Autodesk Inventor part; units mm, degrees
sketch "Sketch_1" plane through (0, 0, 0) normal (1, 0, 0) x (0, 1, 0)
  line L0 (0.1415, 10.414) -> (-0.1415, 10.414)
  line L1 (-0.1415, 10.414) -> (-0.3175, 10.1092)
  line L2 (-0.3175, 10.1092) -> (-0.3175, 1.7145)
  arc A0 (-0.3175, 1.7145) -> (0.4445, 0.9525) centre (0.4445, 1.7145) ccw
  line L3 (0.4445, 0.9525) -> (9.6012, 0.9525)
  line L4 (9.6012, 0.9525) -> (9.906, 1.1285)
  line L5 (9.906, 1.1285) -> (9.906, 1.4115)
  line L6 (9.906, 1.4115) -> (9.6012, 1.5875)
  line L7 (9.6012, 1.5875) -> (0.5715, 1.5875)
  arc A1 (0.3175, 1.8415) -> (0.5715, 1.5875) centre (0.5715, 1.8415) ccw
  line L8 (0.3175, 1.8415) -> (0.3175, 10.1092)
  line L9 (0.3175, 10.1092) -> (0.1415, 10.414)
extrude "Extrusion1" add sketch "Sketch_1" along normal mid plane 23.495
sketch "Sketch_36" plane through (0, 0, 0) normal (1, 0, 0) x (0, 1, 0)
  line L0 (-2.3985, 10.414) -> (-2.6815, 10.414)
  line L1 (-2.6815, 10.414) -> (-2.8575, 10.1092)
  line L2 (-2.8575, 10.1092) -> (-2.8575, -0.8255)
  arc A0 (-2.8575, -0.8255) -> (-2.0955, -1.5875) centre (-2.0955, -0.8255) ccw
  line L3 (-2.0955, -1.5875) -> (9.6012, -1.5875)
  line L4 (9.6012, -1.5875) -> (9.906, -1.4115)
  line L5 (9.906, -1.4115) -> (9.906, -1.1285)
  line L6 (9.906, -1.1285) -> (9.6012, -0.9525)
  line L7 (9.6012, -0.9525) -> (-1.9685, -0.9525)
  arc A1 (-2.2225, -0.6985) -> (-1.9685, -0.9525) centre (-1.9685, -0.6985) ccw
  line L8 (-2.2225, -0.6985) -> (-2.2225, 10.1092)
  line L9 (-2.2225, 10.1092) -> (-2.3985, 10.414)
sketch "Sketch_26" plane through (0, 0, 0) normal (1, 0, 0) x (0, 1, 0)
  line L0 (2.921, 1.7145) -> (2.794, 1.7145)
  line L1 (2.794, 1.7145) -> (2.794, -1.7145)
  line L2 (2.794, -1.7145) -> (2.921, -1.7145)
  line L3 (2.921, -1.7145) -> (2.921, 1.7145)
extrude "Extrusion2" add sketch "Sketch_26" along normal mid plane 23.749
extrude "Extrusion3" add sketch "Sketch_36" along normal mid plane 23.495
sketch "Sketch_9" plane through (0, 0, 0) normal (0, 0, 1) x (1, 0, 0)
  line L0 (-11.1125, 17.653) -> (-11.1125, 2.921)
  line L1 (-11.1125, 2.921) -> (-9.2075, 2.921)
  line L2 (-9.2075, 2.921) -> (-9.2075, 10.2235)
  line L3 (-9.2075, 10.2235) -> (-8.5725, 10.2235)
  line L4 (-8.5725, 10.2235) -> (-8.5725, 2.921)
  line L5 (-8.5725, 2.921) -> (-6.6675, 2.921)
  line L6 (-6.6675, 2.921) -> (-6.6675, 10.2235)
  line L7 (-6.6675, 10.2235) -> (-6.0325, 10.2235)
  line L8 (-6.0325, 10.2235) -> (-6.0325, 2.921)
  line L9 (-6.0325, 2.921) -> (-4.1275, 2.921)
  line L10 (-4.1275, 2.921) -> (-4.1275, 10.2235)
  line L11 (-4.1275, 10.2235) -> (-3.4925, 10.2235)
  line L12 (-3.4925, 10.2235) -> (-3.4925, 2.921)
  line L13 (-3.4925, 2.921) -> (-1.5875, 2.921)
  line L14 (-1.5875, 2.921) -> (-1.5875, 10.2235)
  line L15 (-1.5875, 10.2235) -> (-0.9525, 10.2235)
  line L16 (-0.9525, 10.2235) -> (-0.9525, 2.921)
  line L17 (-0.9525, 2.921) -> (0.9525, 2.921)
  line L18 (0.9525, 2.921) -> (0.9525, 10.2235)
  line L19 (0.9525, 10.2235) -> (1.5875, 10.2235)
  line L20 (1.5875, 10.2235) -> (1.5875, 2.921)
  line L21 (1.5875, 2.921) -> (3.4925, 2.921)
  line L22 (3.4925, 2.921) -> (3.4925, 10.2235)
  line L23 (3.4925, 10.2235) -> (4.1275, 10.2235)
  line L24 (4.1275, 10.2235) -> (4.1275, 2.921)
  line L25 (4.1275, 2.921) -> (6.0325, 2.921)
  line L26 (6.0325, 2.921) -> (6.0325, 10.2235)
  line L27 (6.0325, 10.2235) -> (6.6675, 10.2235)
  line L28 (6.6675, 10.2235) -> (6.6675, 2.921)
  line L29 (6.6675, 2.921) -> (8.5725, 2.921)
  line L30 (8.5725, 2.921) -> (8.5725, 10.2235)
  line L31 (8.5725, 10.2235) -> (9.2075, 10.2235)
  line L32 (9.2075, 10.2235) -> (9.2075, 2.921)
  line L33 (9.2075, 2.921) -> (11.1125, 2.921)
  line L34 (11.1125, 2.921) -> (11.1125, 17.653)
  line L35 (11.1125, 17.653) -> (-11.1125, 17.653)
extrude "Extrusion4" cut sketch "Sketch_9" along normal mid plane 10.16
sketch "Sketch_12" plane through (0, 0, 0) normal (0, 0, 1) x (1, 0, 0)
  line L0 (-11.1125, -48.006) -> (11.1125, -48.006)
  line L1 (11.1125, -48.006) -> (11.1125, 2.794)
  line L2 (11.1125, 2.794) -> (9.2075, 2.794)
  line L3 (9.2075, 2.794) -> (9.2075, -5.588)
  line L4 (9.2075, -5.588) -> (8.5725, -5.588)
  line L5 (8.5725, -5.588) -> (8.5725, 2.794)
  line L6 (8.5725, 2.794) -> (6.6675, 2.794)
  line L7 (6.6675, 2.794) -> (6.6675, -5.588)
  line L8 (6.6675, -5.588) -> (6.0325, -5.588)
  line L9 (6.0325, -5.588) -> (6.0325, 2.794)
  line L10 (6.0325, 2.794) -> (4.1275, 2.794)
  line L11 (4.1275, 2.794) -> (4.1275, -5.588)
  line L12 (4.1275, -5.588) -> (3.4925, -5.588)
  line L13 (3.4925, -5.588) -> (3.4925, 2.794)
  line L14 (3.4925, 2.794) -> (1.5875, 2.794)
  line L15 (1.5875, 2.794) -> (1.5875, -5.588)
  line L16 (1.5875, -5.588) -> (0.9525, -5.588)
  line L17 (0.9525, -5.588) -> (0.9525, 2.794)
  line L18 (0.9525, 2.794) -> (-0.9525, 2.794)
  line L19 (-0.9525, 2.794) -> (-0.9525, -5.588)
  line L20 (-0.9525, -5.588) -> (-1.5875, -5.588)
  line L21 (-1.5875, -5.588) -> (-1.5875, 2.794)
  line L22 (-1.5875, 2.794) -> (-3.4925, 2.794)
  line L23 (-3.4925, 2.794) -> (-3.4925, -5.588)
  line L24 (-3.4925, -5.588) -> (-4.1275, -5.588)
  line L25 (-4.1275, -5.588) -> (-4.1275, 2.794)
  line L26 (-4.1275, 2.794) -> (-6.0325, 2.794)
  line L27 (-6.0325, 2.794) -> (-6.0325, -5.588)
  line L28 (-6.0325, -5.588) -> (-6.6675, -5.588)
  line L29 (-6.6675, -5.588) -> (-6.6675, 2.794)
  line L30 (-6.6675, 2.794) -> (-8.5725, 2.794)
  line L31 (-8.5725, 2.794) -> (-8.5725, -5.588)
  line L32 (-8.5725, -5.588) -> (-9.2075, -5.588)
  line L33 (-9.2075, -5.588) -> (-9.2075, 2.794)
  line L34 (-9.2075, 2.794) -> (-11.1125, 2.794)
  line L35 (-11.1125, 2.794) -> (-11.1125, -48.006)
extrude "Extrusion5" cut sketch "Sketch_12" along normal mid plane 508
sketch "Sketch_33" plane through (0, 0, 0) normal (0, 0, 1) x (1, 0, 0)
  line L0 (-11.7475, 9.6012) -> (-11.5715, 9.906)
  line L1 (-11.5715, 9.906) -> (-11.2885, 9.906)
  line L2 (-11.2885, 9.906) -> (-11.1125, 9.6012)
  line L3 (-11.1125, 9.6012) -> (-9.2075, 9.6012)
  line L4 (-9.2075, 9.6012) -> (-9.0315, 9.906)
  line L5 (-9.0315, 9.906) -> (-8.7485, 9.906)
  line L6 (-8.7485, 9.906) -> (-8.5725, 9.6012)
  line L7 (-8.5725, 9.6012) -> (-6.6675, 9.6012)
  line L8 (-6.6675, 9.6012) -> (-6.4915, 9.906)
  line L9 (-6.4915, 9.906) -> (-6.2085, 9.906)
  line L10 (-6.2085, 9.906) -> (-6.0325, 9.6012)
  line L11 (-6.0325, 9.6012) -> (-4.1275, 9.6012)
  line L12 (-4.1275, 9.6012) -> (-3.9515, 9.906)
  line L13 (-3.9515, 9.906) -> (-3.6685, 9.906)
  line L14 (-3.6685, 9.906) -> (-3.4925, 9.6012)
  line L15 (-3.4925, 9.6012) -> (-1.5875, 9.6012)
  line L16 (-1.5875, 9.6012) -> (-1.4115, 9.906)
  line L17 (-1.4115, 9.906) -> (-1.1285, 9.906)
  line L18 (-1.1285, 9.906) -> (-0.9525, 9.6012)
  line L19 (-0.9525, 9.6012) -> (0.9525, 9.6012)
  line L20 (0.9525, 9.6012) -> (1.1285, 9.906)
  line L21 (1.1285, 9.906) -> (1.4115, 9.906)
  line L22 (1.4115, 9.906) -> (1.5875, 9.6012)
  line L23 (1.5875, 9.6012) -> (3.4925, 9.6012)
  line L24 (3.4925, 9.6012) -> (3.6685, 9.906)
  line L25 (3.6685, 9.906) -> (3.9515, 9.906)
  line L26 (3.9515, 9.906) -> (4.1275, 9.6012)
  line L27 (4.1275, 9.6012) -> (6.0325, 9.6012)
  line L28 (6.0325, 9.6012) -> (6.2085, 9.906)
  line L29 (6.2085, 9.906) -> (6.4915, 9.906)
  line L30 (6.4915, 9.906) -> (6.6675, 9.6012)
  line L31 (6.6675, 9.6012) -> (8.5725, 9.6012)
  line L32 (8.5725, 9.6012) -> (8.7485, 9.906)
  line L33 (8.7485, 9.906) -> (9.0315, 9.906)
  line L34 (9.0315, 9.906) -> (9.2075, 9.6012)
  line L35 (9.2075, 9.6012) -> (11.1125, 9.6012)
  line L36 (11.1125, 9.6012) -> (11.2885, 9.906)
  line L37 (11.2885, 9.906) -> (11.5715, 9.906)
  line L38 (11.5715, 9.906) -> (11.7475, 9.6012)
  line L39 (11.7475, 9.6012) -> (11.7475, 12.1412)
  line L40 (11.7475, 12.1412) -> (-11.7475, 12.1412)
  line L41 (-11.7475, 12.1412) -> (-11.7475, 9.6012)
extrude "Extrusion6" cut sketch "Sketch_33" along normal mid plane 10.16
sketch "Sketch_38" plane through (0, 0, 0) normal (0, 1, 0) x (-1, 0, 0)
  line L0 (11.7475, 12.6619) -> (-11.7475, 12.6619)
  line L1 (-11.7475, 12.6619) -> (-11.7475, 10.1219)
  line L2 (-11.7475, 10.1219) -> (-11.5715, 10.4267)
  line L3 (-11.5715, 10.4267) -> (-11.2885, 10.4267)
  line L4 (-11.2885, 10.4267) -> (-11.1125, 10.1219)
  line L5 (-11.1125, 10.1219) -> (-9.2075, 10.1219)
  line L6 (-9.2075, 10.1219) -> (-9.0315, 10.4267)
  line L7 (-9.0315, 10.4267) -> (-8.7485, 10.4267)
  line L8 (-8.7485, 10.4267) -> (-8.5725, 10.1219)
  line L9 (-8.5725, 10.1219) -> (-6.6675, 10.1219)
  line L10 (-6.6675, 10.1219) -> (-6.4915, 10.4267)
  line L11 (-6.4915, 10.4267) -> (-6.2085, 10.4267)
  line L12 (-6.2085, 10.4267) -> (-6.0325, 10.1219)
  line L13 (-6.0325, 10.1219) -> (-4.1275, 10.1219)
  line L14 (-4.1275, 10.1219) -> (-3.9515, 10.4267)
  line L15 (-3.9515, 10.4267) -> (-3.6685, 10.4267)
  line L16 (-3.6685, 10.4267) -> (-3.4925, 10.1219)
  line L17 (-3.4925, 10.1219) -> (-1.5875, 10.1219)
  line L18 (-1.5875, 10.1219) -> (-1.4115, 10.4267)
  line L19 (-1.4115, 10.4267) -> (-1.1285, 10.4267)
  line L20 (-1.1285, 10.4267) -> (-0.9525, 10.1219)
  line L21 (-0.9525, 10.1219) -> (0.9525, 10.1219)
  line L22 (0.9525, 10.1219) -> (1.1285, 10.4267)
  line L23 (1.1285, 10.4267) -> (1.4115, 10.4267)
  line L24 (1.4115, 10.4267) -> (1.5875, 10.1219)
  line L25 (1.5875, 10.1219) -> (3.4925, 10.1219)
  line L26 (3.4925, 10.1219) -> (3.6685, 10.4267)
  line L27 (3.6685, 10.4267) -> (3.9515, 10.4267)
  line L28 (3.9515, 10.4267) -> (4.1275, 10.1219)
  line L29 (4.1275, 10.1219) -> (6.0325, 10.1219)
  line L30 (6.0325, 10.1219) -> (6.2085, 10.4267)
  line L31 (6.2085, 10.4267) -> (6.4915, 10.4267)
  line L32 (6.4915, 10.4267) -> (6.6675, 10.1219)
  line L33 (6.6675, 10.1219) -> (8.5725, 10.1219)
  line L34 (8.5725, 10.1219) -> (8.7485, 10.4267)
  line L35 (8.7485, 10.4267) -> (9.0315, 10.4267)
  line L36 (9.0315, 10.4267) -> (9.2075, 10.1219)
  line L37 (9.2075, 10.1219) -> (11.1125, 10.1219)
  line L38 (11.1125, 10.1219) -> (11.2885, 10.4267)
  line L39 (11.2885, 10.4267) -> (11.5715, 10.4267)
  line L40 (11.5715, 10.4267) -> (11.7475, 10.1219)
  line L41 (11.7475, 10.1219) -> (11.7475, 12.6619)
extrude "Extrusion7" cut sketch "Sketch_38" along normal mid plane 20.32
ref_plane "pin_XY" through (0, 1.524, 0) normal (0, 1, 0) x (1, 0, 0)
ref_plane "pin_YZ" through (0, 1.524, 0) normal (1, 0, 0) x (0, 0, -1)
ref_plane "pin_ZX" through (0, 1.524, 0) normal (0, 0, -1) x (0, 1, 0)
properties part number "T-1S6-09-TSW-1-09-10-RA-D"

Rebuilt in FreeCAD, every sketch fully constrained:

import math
import FreeCAD as App
import Part
import Sketcher
Q = App.Units.Quantity


def add_polygon(sketch, points):
    """Adds a closed chain of lines whose ends are joined by coincident constraints."""
    first, n = sketch.GeometryCount, len(points)
    for a, b in zip(points, points[1:] + points[:1]):
        sketch.addGeometry(Part.LineSegment(App.Vector(*a, 0), App.Vector(*b, 0)), False)
    for i in range(n):
        sketch.addConstraint(Sketcher.Constraint("Coincident", first + i, 2, first + (i + 1) % n, 1))

doc = App.newDocument("Part")
body = doc.addObject("PartDesign::Body", "Body")

# Sketch on YZ plane
sketch1 = body.newObject("Sketcher::SketchObject", "Sketch")
sketch1.AttachmentSupport = (doc.getObject("YZ_Plane"), [""])
sketch1.MapMode = "FlatFace"
sketch1.addGeometry(Part.LineSegment(App.Vector(0.32, 10.11, 0), App.Vector(0.14, 10.41, 0)), False)
sketch1.addGeometry(Part.LineSegment(App.Vector(0.14, 10.41, 0), App.Vector(-0.14, 10.41, 0)), False)
sketch1.addGeometry(Part.LineSegment(App.Vector(-0.14, 10.41, 0), App.Vector(-0.32, 10.11, 0)), False)
sketch1.addGeometry(Part.LineSegment(App.Vector(-0.32, 10.11, 0), App.Vector(-0.32, 1.71, 0)), False)
sketch1.addGeometry(Part.ArcOfCircle(Part.Circle(App.Vector(0.44, 1.71, 0), App.Vector(0, 0, 1), 0.76), math.radians(180), math.radians(270)), False)
sketch1.addGeometry(Part.LineSegment(App.Vector(0.44, 0.95, 0), App.Vector(9.6, 0.95, 0)), False)
sketch1.addGeometry(Part.LineSegment(App.Vector(9.6, 0.95, 0), App.Vector(9.91, 1.13, 0)), False)
sketch1.addGeometry(Part.LineSegment(App.Vector(9.91, 1.13, 0), App.Vector(9.91, 1.41, 0)), False)
sketch1.addGeometry(Part.LineSegment(App.Vector(9.91, 1.41, 0), App.Vector(9.6, 1.59, 0)), False)
sketch1.addGeometry(Part.LineSegment(App.Vector(9.6, 1.59, 0), App.Vector(0.57, 1.59, 0)), False)
sketch1.addGeometry(Part.ArcOfCircle(Part.Circle(App.Vector(0.57, 1.84, 0), App.Vector(0, 0, 1), 0.25), math.radians(180), math.radians(270)), False)
sketch1.addGeometry(Part.LineSegment(App.Vector(0.32, 1.84, 0), App.Vector(0.32, 10.11, 0)), False)
sketch1.addConstraint(Sketcher.Constraint("Coincident", 0, 2, 1, 1))
sketch1.addConstraint(Sketcher.Constraint("Coincident", 1, 2, 2, 1))
sketch1.addConstraint(Sketcher.Constraint("Coincident", 2, 2, 3, 1))
sketch1.addConstraint(Sketcher.Constraint("Tangent", 3, 2, 4, 1))
sketch1.addConstraint(Sketcher.Constraint("Tangent", 4, 2, 5, 1))
sketch1.addConstraint(Sketcher.Constraint("Coincident", 5, 2, 6, 1))
sketch1.addConstraint(Sketcher.Constraint("Coincident", 6, 2, 7, 1))
sketch1.addConstraint(Sketcher.Constraint("Coincident", 7, 2, 8, 1))
sketch1.addConstraint(Sketcher.Constraint("Coincident", 8, 2, 9, 1))
sketch1.addConstraint(Sketcher.Constraint("Tangent", 9, 2, 10, 2))
sketch1.addConstraint(Sketcher.Constraint("Tangent", 10, 1, 11, 1))
sketch1.addConstraint(Sketcher.Constraint("Coincident", 11, 2, 0, 1))
sketch1.addConstraint(Sketcher.Constraint("Horizontal", 1))
sketch1.addConstraint(Sketcher.Constraint("Vertical", 3))
sketch1.addConstraint(Sketcher.Constraint("Horizontal", 5))
sketch1.addConstraint(Sketcher.Constraint("Vertical", 7))
sketch1.addConstraint(Sketcher.Constraint("Horizontal", 9))
sketch1.addConstraint(Sketcher.Constraint("Vertical", 11))
sketch1.addConstraint(Sketcher.Constraint("Symmetric", 2, 2, 11, 2, -2))
sketch1.addConstraint(Sketcher.Constraint("Perpendicular", 0, 6))
sketch1.addConstraint(Sketcher.Constraint("Perpendicular", 2, 8))
sketch1.addConstraint(Sketcher.Constraint("Vertical", 5, 2, 8, 2))
sketch1.addConstraint(Sketcher.Constraint("Equal", 1, 7))
sketch1.addConstraint(Sketcher.Constraint("Equal", 0, 2))
sketch1.addConstraint(Sketcher.Constraint("Equal", 2, 6))
sketch1.addConstraint(Sketcher.Constraint("Radius", 4, Q("0.03 in")))
sketch1.addConstraint(Sketcher.Constraint("Radius", 10, Q("0.01 in")))
sketch1.addConstraint(Sketcher.Constraint("DistanceY", -1, 1, 0, 2, Q("0.41 in")))
sketch1.addConstraint(Sketcher.Constraint("DistanceX", -1, 1, 6, 2, Q("0.39 in")))
sketch1.addConstraint(Sketcher.Constraint("DistanceX", 5, 1, 5, 2, Q("0.3605 in")))
sketch1.addConstraint(Sketcher.Constraint("DistanceX", 9, 2, 9, 1, Q("0.3555 in")))
sketch1.addConstraint(Sketcher.Constraint("DistanceY", 3, 2, 3, 1, Q("0.3305 in")))
sketch1.addConstraint(Sketcher.Constraint("DistanceX", 1, 2, 1, 1, 0.283))
pad1 = body.newObject("PartDesign::Pad", "Pad")
pad1.Profile = sketch1
pad1.Length = Q("0.925 in")
pad1.Midplane = True

# Sketch on YZ plane
sketch2 = body.newObject("Sketcher::SketchObject", "Sketch001")
sketch2.AttachmentSupport = (doc.getObject("YZ_Plane"), [""])
sketch2.MapMode = "FlatFace"
add_polygon(sketch2, [(2.92, -1.71), (2.92, 1.71), (2.79, 1.71), (2.79, -1.71)])  # lines 0-3
sketch2.addConstraint(Sketcher.Constraint("Vertical", 0))
sketch2.addConstraint(Sketcher.Constraint("Horizontal", 1))
sketch2.addConstraint(Sketcher.Constraint("Vertical", 2))
sketch2.addConstraint(Sketcher.Constraint("Horizontal", 3))
sketch2.addConstraint(Sketcher.Constraint("DistanceX", 1, 2, 1, 1, Q("0.005 in")))
sketch2.addConstraint(Sketcher.Constraint("DistanceY", 0, 1, 0, 2, Q("0.135 in")))
sketch2.addConstraint(Sketcher.Constraint("DistanceX", -1, 1, 1, 2, Q("0.11 in")))
sketch2.addConstraint(Sketcher.Constraint("DistanceY", -1, 1, 0, 2, Q("0.0675 in")))
pad2 = body.newObject("PartDesign::Pad", "Pad001")
pad2.Profile = sketch2
pad2.Length = Q("0.935 in")
pad2.Midplane = True

# Sketch on YZ plane
sketch3 = body.newObject("Sketcher::SketchObject", "Sketch002")
sketch3.AttachmentSupport = (doc.getObject("YZ_Plane"), [""])
sketch3.MapMode = "FlatFace"
sketch3.addGeometry(Part.LineSegment(App.Vector(-2.22, 10.11, 0), App.Vector(-2.4, 10.41, 0)), False)
sketch3.addGeometry(Part.LineSegment(App.Vector(-2.4, 10.41, 0), App.Vector(-2.68, 10.41, 0)), False)
sketch3.addGeometry(Part.LineSegment(App.Vector(-2.68, 10.41, 0), App.Vector(-2.86, 10.11, 0)), False)
sketch3.addGeometry(Part.LineSegment(App.Vector(-2.86, 10.11, 0), App.Vector(-2.86, -0.83, 0)), False)
sketch3.addGeometry(Part.ArcOfCircle(Part.Circle(App.Vector(-2.1, -0.83, 0), App.Vector(0, 0, 1), 0.76), math.radians(180), math.radians(270)), False)
sketch3.addGeometry(Part.LineSegment(App.Vector(-2.1, -1.59, 0), App.Vector(9.6, -1.59, 0)), False)
sketch3.addGeometry(Part.LineSegment(App.Vector(9.6, -1.59, 0), App.Vector(9.91, -1.41, 0)), False)
sketch3.addGeometry(Part.LineSegment(App.Vector(9.91, -1.41, 0), App.Vector(9.91, -1.13, 0)), False)
sketch3.addGeometry(Part.LineSegment(App.Vector(9.91, -1.13, 0), App.Vector(9.6, -0.95, 0)), False)
sketch3.addGeometry(Part.LineSegment(App.Vector(9.6, -0.95, 0), App.Vector(-1.97, -0.95, 0)), False)
sketch3.addGeometry(Part.ArcOfCircle(Part.Circle(App.Vector(-1.97, -0.7, 0), App.Vector(0, 0, 1), 0.25), math.radians(180), math.radians(270)), False)
sketch3.addGeometry(Part.LineSegment(App.Vector(-2.22, -0.7, 0), App.Vector(-2.22, 10.11, 0)), False)
sketch3.addConstraint(Sketcher.Constraint("Coincident", 0, 2, 1, 1))
sketch3.addConstraint(Sketcher.Constraint("Coincident", 1, 2, 2, 1))
sketch3.addConstraint(Sketcher.Constraint("Coincident", 2, 2, 3, 1))
sketch3.addConstraint(Sketcher.Constraint("Tangent", 3, 2, 4, 1))
sketch3.addConstraint(Sketcher.Constraint("Tangent", 4, 2, 5, 1))
sketch3.addConstraint(Sketcher.Constraint("Coincident", 5, 2, 6, 1))
sketch3.addConstraint(Sketcher.Constraint("Coincident", 6, 2, 7, 1))
sketch3.addConstraint(Sketcher.Constraint("Coincident", 7, 2, 8, 1))
sketch3.addConstraint(Sketcher.Constraint("Coincident", 8, 2, 9, 1))
sketch3.addConstraint(Sketcher.Constraint("Tangent", 9, 2, 10, 2))
sketch3.addConstraint(Sketcher.Constraint("Tangent", 10, 1, 11, 1))
sketch3.addConstraint(Sketcher.Constraint("Coincident", 11, 2, 0, 1))
sketch3.addConstraint(Sketcher.Constraint("Horizontal", 1))
sketch3.addConstraint(Sketcher.Constraint("Vertical", 3))
sketch3.addConstraint(Sketcher.Constraint("Horizontal", 5))
sketch3.addConstraint(Sketcher.Constraint("Vertical", 7))
sketch3.addConstraint(Sketcher.Constraint("Horizontal", 9))
sketch3.addConstraint(Sketcher.Constraint("Vertical", 11))
sketch3.addConstraint(Sketcher.Constraint("Perpendicular", 0, 6))
sketch3.addConstraint(Sketcher.Constraint("Perpendicular", 2, 8))
sketch3.addConstraint(Sketcher.Constraint("Horizontal", 2, 2, 11, 2))
sketch3.addConstraint(Sketcher.Constraint("Vertical", 5, 2, 8, 2))
sketch3.addConstraint(Sketcher.Constraint("Equal", 1, 7))
sketch3.addConstraint(Sketcher.Constraint("Equal", 0, 2))
sketch3.addConstraint(Sketcher.Constraint("Equal", 2, 6))
sketch3.addConstraint(Sketcher.Constraint("Radius", 4, Q("0.03 in")))
sketch3.addConstraint(Sketcher.Constraint("Radius", 10, Q("0.01 in")))
sketch3.addConstraint(Sketcher.Constraint("DistanceY", -1, 1, 0, 2, Q("0.41 in")))
sketch3.addConstraint(Sketcher.Constraint("DistanceX", -1, 1, 6, 2, Q("0.39 in")))
sketch3.addConstraint(Sketcher.Constraint("DistanceX", 5, 1, 5, 2, Q("0.4605 in")))
sketch3.addConstraint(Sketcher.Constraint("DistanceX", 9, 2, 9, 1, Q("0.4555 in")))
sketch3.addConstraint(Sketcher.Constraint("DistanceY", 3, 2, 3, 1, Q("0.4305 in")))
sketch3.addConstraint(Sketcher.Constraint("DistanceY", -1, 1, 2, 2, Q("0.398 in")))
sketch3.addConstraint(Sketcher.Constraint("DistanceX", 1, 2, 1, 1, 0.283))
pad3 = body.newObject("PartDesign::Pad", "Pad002")
pad3.Profile = sketch3
pad3.Length = Q("0.925 in")
pad3.Midplane = True

# Sketch on XY plane
sketch4 = body.newObject("Sketcher::SketchObject", "Sketch003")
sketch4.AttachmentSupport = (doc.getObject("XY_Plane"), [""])
sketch4.MapMode = "FlatFace"
add_polygon(sketch4, [(11.1, 17.7), (-11.1, 17.7), (-11.1, 2.9), (-9.2, 2.9), (-9.2, 10.2), (-8.6, 10.2), (-8.6, 2.9), (-6.7, 2.9), (-6.7, 10.2), (-6, 10.2), (-6, 2.9), (-4.1, 2.9), (-4.1, 10.2), (-3.5, 10.2), (-3.5, 2.9), (-1.6, 2.9), (-1.6, 10.2), (-1, 10.2), (-1, 2.9), (1, 2.9), (1, 10.2), (1.6, 10.2), (1.6, 2.9), (3.5, 2.9), (3.5, 10.2), (4.1, 10.2), (4.1, 2.9), (6, 2.9), (6, 10.2), (6.7, 10.2), (6.7, 2.9), (8.6, 2.9), (8.6, 10.2), (9.2, 10.2), (9.2, 2.9), (11.1, 2.9)])  # lines 0-35
sketch4.addConstraint(Sketcher.Constraint("Horizontal", 0))
sketch4.addConstraint(Sketcher.Constraint("Vertical", 1))
sketch4.addConstraint(Sketcher.Constraint("Horizontal", 2))
sketch4.addConstraint(Sketcher.Constraint("Vertical", 3))
sketch4.addConstraint(Sketcher.Constraint("Horizontal", 4))
sketch4.addConstraint(Sketcher.Constraint("Vertical", 5))
sketch4.addConstraint(Sketcher.Constraint("Horizontal", 6))
sketch4.addConstraint(Sketcher.Constraint("Vertical", 7))
sketch4.addConstraint(Sketcher.Constraint("Horizontal", 8))
sketch4.addConstraint(Sketcher.Constraint("Vertical", 9))
sketch4.addConstraint(Sketcher.Constraint("Horizontal", 10))
sketch4.addConstraint(Sketcher.Constraint("Vertical", 11))
sketch4.addConstraint(Sketcher.Constraint("Horizontal", 12))
sketch4.addConstraint(Sketcher.Constraint("Vertical", 13))
sketch4.addConstraint(Sketcher.Constraint("Horizontal", 14))
sketch4.addConstraint(Sketcher.Constraint("Vertical", 15))
sketch4.addConstraint(Sketcher.Constraint("Horizontal", 16))
sketch4.addConstraint(Sketcher.Constraint("Vertical", 17))
sketch4.addConstraint(Sketcher.Constraint("Horizontal", 18))
sketch4.addConstraint(Sketcher.Constraint("Vertical", 19))
sketch4.addConstraint(Sketcher.Constraint("Horizontal", 20))
sketch4.addConstraint(Sketcher.Constraint("Vertical", 21))
sketch4.addConstraint(Sketcher.Constraint("Horizontal", 22))
sketch4.addConstraint(Sketcher.Constraint("Vertical", 23))
sketch4.addConstraint(Sketcher.Constraint("Horizontal", 24))
sketch4.addConstraint(Sketcher.Constraint("Vertical", 25))
sketch4.addConstraint(Sketcher.Constraint("Horizontal", 26))
sketch4.addConstraint(Sketcher.Constraint("Vertical", 27))
sketch4.addConstraint(Sketcher.Constraint("Horizontal", 28))
sketch4.addConstraint(Sketcher.Constraint("Vertical", 29))
sketch4.addConstraint(Sketcher.Constraint("Horizontal", 30))
sketch4.addConstraint(Sketcher.Constraint("Vertical", 31))
sketch4.addConstraint(Sketcher.Constraint("Horizontal", 32))
sketch4.addConstraint(Sketcher.Constraint("Vertical", 33))
sketch4.addConstraint(Sketcher.Constraint("Horizontal", 34))
sketch4.addConstraint(Sketcher.Constraint("Vertical", 35))
sketch4.addConstraint(Sketcher.Constraint("Symmetric", 16, 2, 19, 2, -2))
sketch4.addConstraint(Sketcher.Constraint("Symmetric", 14, 2, 21, 2, -2))
sketch4.addConstraint(Sketcher.Constraint("Symmetric", 12, 2, 23, 2, -2))
sketch4.addConstraint(Sketcher.Constraint("Symmetric", 10, 2, 25, 2, -2))
sketch4.addConstraint(Sketcher.Constraint("Symmetric", 8, 2, 27, 2, -2))
sketch4.addConstraint(Sketcher.Constraint("Symmetric", 6, 2, 29, 2, -2))
sketch4.addConstraint(Sketcher.Constraint("Symmetric", 4, 2, 31, 2, -2))
sketch4.addConstraint(Sketcher.Constraint("Symmetric", 2, 2, 33, 2, -2))
sketch4.addConstraint(Sketcher.Constraint("Horizontal", 2, 2, 5, 2))
sketch4.addConstraint(Sketcher.Constraint("Horizontal", 4, 2, 7, 2))
sketch4.addConstraint(Sketcher.Constraint("Horizontal", 6, 2, 9, 2))
sketch4.addConstraint(Sketcher.Constraint("Horizontal", 8, 2, 11, 2))
sketch4.addConstraint(Sketcher.Constraint("Horizontal", 10, 2, 13, 2))
sketch4.addConstraint(Sketcher.Constraint("Horizontal", 12, 2, 15, 2))
sketch4.addConstraint(Sketcher.Constraint("Horizontal", 14, 2, 17, 2))
sketch4.addConstraint(Sketcher.Constraint("Equal", 2, 6))
sketch4.addConstraint(Sketcher.Constraint("Equal", 4, 8))
sketch4.addConstraint(Sketcher.Constraint("Equal", 6, 10))
sketch4.addConstraint(Sketcher.Constraint("Equal", 8, 12))
sketch4.addConstraint(Sketcher.Constraint("Equal", 10, 14))
sketch4.addConstraint(Sketcher.Constraint("Equal", 12, 16))
sketch4.addConstraint(Sketcher.Constraint("Equal", 14, 18))
sketch4.addConstraint(Sketcher.Constraint("Equal", 30, 34))
sketch4.addConstraint(Sketcher.Constraint("DistanceY", 1, 2, 1, 1, Q("0.58 in")))
sketch4.addConstraint(Sketcher.Constraint("DistanceX", 1, 2, 4, 2, Q("0.1 in")))
sketch4.addConstraint(Sketcher.Constraint("DistanceX", 0, 2, 0, 1, Q("0.875 in")))
sketch4.addConstraint(Sketcher.Constraint("DistanceY", 3, 1, 3, 2, Q("0.2875 in")))
sketch4.addConstraint(Sketcher.Constraint("DistanceY", -1, 1, 0, 2, Q("0.695 in")))
pocket1 = body.newObject("PartDesign::Pocket", "Pocket")
pocket1.Profile = sketch4
pocket1.Length = Q("0.4 in")
pocket1.Midplane = True

# Sketch on XY plane
sketch5 = body.newObject("Sketcher::SketchObject", "Sketch004")
sketch5.AttachmentSupport = (doc.getObject("XY_Plane"), [""])
sketch5.MapMode = "FlatFace"
add_polygon(sketch5, [(-11.1, 2.8), (-11.1, -48), (11.1, -48), (11.1, 2.8), (9.2, 2.8), (9.2, -5.6), (8.6, -5.6), (8.6, 2.8), (6.7, 2.8), (6.7, -5.6), (6, -5.6), (6, 2.8), (4.1, 2.8), (4.1, -5.6), (3.5, -5.6), (3.5, 2.8), (1.6, 2.8), (1.6, -5.6), (1, -5.6), (1, 2.8), (-1, 2.8), (-1, -5.6), (-1.6, -5.6), (-1.6, 2.8), (-3.5, 2.8), (-3.5, -5.6), (-4.1, -5.6), (-4.1, 2.8), (-6, 2.8), (-6, -5.6), (-6.7, -5.6), (-6.7, 2.8), (-8.6, 2.8), (-8.6, -5.6), (-9.2, -5.6), (-9.2, 2.8)])  # lines 0-35
sketch5.addConstraint(Sketcher.Constraint("Vertical", 0))
sketch5.addConstraint(Sketcher.Constraint("Horizontal", 1))
sketch5.addConstraint(Sketcher.Constraint("Vertical", 2))
sketch5.addConstraint(Sketcher.Constraint("Horizontal", 3))
sketch5.addConstraint(Sketcher.Constraint("Vertical", 4))
sketch5.addConstraint(Sketcher.Constraint("Horizontal", 5))
sketch5.addConstraint(Sketcher.Constraint("Vertical", 6))
sketch5.addConstraint(Sketcher.Constraint("Horizontal", 7))
sketch5.addConstraint(Sketcher.Constraint("Vertical", 8))
sketch5.addConstraint(Sketcher.Constraint("Horizontal", 9))
sketch5.addConstraint(Sketcher.Constraint("Vertical", 10))
sketch5.addConstraint(Sketcher.Constraint("Horizontal", 11))
sketch5.addConstraint(Sketcher.Constraint("Vertical", 12))
sketch5.addConstraint(Sketcher.Constraint("Horizontal", 13))
sketch5.addConstraint(Sketcher.Constraint("Vertical", 14))
sketch5.addConstraint(Sketcher.Constraint("Horizontal", 15))
sketch5.addConstraint(Sketcher.Constraint("Vertical", 16))
sketch5.addConstraint(Sketcher.Constraint("Horizontal", 17))
sketch5.addConstraint(Sketcher.Constraint("Vertical", 18))
sketch5.addConstraint(Sketcher.Constraint("Horizontal", 19))
sketch5.addConstraint(Sketcher.Constraint("Vertical", 20))
sketch5.addConstraint(Sketcher.Constraint("Horizontal", 21))
sketch5.addConstraint(Sketcher.Constraint("Vertical", 22))
sketch5.addConstraint(Sketcher.Constraint("Horizontal", 23))
sketch5.addConstraint(Sketcher.Constraint("Vertical", 24))
sketch5.addConstraint(Sketcher.Constraint("Horizontal", 25))
sketch5.addConstraint(Sketcher.Constraint("Vertical", 26))
sketch5.addConstraint(Sketcher.Constraint("Horizontal", 27))
sketch5.addConstraint(Sketcher.Constraint("Vertical", 28))
sketch5.addConstraint(Sketcher.Constraint("Horizontal", 29))
sketch5.addConstraint(Sketcher.Constraint("Vertical", 30))
sketch5.addConstraint(Sketcher.Constraint("Horizontal", 31))
sketch5.addConstraint(Sketcher.Constraint("Vertical", 32))
sketch5.addConstraint(Sketcher.Constraint("Horizontal", 33))
sketch5.addConstraint(Sketcher.Constraint("Vertical", 34))
sketch5.addConstraint(Sketcher.Constraint("Horizontal", 35))
sketch5.addConstraint(Sketcher.Constraint("Symmetric", 17, 2, 20, 2, -2))
sketch5.addConstraint(Sketcher.Constraint("Symmetric", 15, 2, 22, 2, -2))
sketch5.addConstraint(Sketcher.Constraint("Symmetric", 13, 2, 24, 2, -2))
sketch5.addConstraint(Sketcher.Constraint("Symmetric", 11, 2, 26, 2, -2))
sketch5.addConstraint(Sketcher.Constraint("Symmetric", 9, 2, 28, 2, -2))
sketch5.addConstraint(Sketcher.Constraint("Symmetric", 7, 2, 30, 2, -2))
sketch5.addConstraint(Sketcher.Constraint("Symmetric", 5, 2, 32, 2, -2))
sketch5.addConstraint(Sketcher.Constraint("Symmetric", 3, 2, 34, 2, -2))
sketch5.addConstraint(Sketcher.Constraint("Horizontal", 3, 2, 6, 2))
sketch5.addConstraint(Sketcher.Constraint("Horizontal", 5, 2, 8, 2))
sketch5.addConstraint(Sketcher.Constraint("Horizontal", 7, 2, 10, 2))
sketch5.addConstraint(Sketcher.Constraint("Horizontal", 9, 2, 12, 2))
sketch5.addConstraint(Sketcher.Constraint("Horizontal", 11, 2, 14, 2))
sketch5.addConstraint(Sketcher.Constraint("Horizontal", 13, 2, 16, 2))
sketch5.addConstraint(Sketcher.Constraint("Horizontal", 15, 2, 18, 2))
sketch5.addConstraint(Sketcher.Constraint("Equal", 3, 7))
sketch5.addConstraint(Sketcher.Constraint("Equal", 5, 9))
sketch5.addConstraint(Sketcher.Constraint("Equal", 7, 11))
sketch5.addConstraint(Sketcher.Constraint("Equal", 9, 13))
sketch5.addConstraint(Sketcher.Constraint("Equal", 11, 15))
sketch5.addConstraint(Sketcher.Constraint("Equal", 13, 17))
sketch5.addConstraint(Sketcher.Constraint("Equal", 15, 19))
sketch5.addConstraint(Sketcher.Constraint("Equal", 31, 35))
sketch5.addConstraint(Sketcher.Constraint("DistanceY", 0, 2, 0, 1, Q("2 in")))
sketch5.addConstraint(Sketcher.Constraint("DistanceY", 4, 2, 4, 1, Q("0.33 in")))
sketch5.addConstraint(Sketcher.Constraint("DistanceX", 0, 2, 3, 2, Q("0.8 in")))
sketch5.addConstraint(Sketcher.Constraint("DistanceX", 1, 1, 1, 2, Q("0.875 in")))
sketch5.addConstraint(Sketcher.Constraint("DistanceY", 0, 2, -1, 1, Q("1.89 in")))
pocket2 = body.newObject("PartDesign::Pocket", "Pocket001")
pocket2.Profile = sketch5
pocket2.Length = Q("20 in")
pocket2.Midplane = True

# Sketch on XY plane
sketch6 = body.newObject("Sketcher::SketchObject", "Sketch005")
sketch6.AttachmentSupport = (doc.getObject("XY_Plane"), [""])
sketch6.MapMode = "FlatFace"
add_polygon(sketch6, [(-11.75, 12.14), (-11.75, 9.6), (-11.57, 9.91), (-11.29, 9.91), (-11.11, 9.6), (-9.21, 9.6), (-9.03, 9.91), (-8.75, 9.91), (-8.57, 9.6), (-6.67, 9.6), (-6.49, 9.91), (-6.21, 9.91), (-6.03, 9.6), (-4.13, 9.6), (-3.95, 9.91), (-3.67, 9.91), (-3.49, 9.6), (-1.59, 9.6), (-1.41, 9.91), (-1.13, 9.91), (-0.95, 9.6), (0.95, 9.6), (1.13, 9.91), (1.41, 9.91), (1.59, 9.6), (3.49, 9.6), (3.67, 9.91), (3.95, 9.91), (4.13, 9.6), (6.03, 9.6), (6.21, 9.91), (6.49, 9.91), (6.67, 9.6), (8.57, 9.6), (8.75, 9.91), (9.03, 9.91), (9.21, 9.6), (11.11, 9.6), (11.29, 9.91), (11.57, 9.91), (11.75, 9.6), (11.75, 12.14)])  # lines 0-41
sketch6.addConstraint(Sketcher.Constraint("Vertical", 0))
sketch6.addConstraint(Sketcher.Constraint("Horizontal", 2))
sketch6.addConstraint(Sketcher.Constraint("Horizontal", 4))
sketch6.addConstraint(Sketcher.Constraint("Horizontal", 6))
sketch6.addConstraint(Sketcher.Constraint("Horizontal", 8))
sketch6.addConstraint(Sketcher.Constraint("Horizontal", 10))
sketch6.addConstraint(Sketcher.Constraint("Horizontal", 12))
sketch6.addConstraint(Sketcher.Constraint("Horizontal", 14))
sketch6.addConstraint(Sketcher.Constraint("Horizontal", 16))
sketch6.addConstraint(Sketcher.Constraint("Horizontal", 18))
sketch6.addConstraint(Sketcher.Constraint("Horizontal", 20))
sketch6.addConstraint(Sketcher.Constraint("Horizontal", 22))
sketch6.addConstraint(Sketcher.Constraint("Horizontal", 24))
sketch6.addConstraint(Sketcher.Constraint("Horizontal", 26))
sketch6.addConstraint(Sketcher.Constraint("Horizontal", 28))
sketch6.addConstraint(Sketcher.Constraint("Horizontal", 30))
sketch6.addConstraint(Sketcher.Constraint("Horizontal", 32))
sketch6.addConstraint(Sketcher.Constraint("Horizontal", 34))
sketch6.addConstraint(Sketcher.Constraint("Horizontal", 36))
sketch6.addConstraint(Sketcher.Constraint("Horizontal", 38))
sketch6.addConstraint(Sketcher.Constraint("Vertical", 40))
sketch6.addConstraint(Sketcher.Constraint("Horizontal", 41))
sketch6.addConstraint(Sketcher.Constraint("Symmetric", 18, 2, 21, 2, -2))
sketch6.addConstraint(Sketcher.Constraint("Symmetric", 16, 2, 23, 2, -2))
sketch6.addConstraint(Sketcher.Constraint("Symmetric", 14, 2, 25, 2, -2))
sketch6.addConstraint(Sketcher.Constraint("Symmetric", 12, 2, 27, 2, -2))
sketch6.addConstraint(Sketcher.Constraint("Symmetric", 10, 2, 29, 2, -2))
sketch6.addConstraint(Sketcher.Constraint("Symmetric", 8, 2, 31, 2, -2))
sketch6.addConstraint(Sketcher.Constraint("Symmetric", 6, 2, 33, 2, -2))
sketch6.addConstraint(Sketcher.Constraint("Symmetric", 4, 2, 35, 2, -2))
sketch6.addConstraint(Sketcher.Constraint("Symmetric", 2, 2, 37, 2, -2))
sketch6.addConstraint(Sketcher.Constraint("Symmetric", 0, 2, 39, 2, -2))
sketch6.addConstraint(Sketcher.Constraint("Parallel", 1, 5))
sketch6.addConstraint(Sketcher.Constraint("Parallel", 3, 7))
sketch6.addConstraint(Sketcher.Constraint("Parallel", 5, 9))
sketch6.addConstraint(Sketcher.Constraint("Parallel", 7, 11))
sketch6.addConstraint(Sketcher.Constraint("Parallel", 9, 13))
sketch6.addConstraint(Sketcher.Constraint("Parallel", 11, 15))
sketch6.addConstraint(Sketcher.Constraint("Parallel", 13, 17))
sketch6.addConstraint(Sketcher.Constraint("Parallel", 15, 19))
sketch6.addConstraint(Sketcher.Constraint("Parallel", 17, 21))
sketch6.addConstraint(Sketcher.Constraint("Parallel", 19, 23))
sketch6.addConstraint(Sketcher.Constraint("Parallel", 21, 25))
sketch6.addConstraint(Sketcher.Constraint("Parallel", 23, 27))
sketch6.addConstraint(Sketcher.Constraint("Parallel", 25, 29))
sketch6.addConstraint(Sketcher.Constraint("Parallel", 27, 31))
sketch6.addConstraint(Sketcher.Constraint("Parallel", 29, 33))
sketch6.addConstraint(Sketcher.Constraint("Parallel", 31, 35))
sketch6.addConstraint(Sketcher.Constraint("Parallel", 33, 37))
sketch6.addConstraint(Sketcher.Constraint("Parallel", 35, 39))
sketch6.addConstraint(Sketcher.Constraint("Horizontal", 0, 2, 3, 2))
sketch6.addConstraint(Sketcher.Constraint("Horizontal", 2, 2, 5, 2))
sketch6.addConstraint(Sketcher.Constraint("Horizontal", 4, 2, 7, 2))
sketch6.addConstraint(Sketcher.Constraint("Horizontal", 6, 2, 9, 2))
sketch6.addConstraint(Sketcher.Constraint("Horizontal", 8, 2, 11, 2))
sketch6.addConstraint(Sketcher.Constraint("Horizontal", 10, 2, 13, 2))
sketch6.addConstraint(Sketcher.Constraint("Horizontal", 12, 2, 15, 2))
sketch6.addConstraint(Sketcher.Constraint("Horizontal", 14, 2, 17, 2))
sketch6.addConstraint(Sketcher.Constraint("Horizontal", 16, 2, 19, 2))
sketch6.addConstraint(Sketcher.Constraint("Equal", 2, 6))
sketch6.addConstraint(Sketcher.Constraint("Equal", 4, 8))
sketch6.addConstraint(Sketcher.Constraint("Equal", 6, 10))
sketch6.addConstraint(Sketcher.Constraint("Equal", 8, 12))
sketch6.addConstraint(Sketcher.Constraint("Equal", 10, 14))
sketch6.addConstraint(Sketcher.Constraint("Equal", 12, 16))
sketch6.addConstraint(Sketcher.Constraint("Equal", 14, 18))
sketch6.addConstraint(Sketcher.Constraint("Equal", 16, 20))
sketch6.addConstraint(Sketcher.Constraint("Equal", 18, 22))
sketch6.addConstraint(Sketcher.Constraint("DistanceY", 0, 2, 0, 1, Q("0.1 in")))
sketch6.addConstraint(Sketcher.Constraint("DistanceX", 0, 2, 4, 2, Q("0.1 in")))
sketch6.addConstraint(Sketcher.Constraint("DistanceX", 4, 1, 4, 2, Q("0.075 in")))
sketch6.addConstraint(Sketcher.Constraint("DistanceY", -1, 1, 1, 2, Q("0.39 in")))
sketch6.addConstraint(Sketcher.Constraint("DistanceY", -1, 1, 0, 2, Q("0.378 in")))
sketch6.addConstraint(Sketcher.Constraint("DistanceX", 2, 1, 2, 2, 0.283))
pocket3 = body.newObject("PartDesign::Pocket", "Pocket002")
pocket3.Profile = sketch6
pocket3.Length = Q("0.4 in")
pocket3.Midplane = True

# Sketch on XZ plane
sketch7 = body.newObject("Sketcher::SketchObject", "Sketch006")
sketch7.AttachmentSupport = (doc.getObject("XZ_Plane"), [""])
sketch7.MapMode = "FlatFace"
add_polygon(sketch7, [(-11.75, 10.12), (-11.75, 12.66), (11.75, 12.66), (11.75, 10.12), (11.57, 10.43), (11.29, 10.43), (11.11, 10.12), (9.21, 10.12), (9.03, 10.43), (8.75, 10.43), (8.57, 10.12), (6.67, 10.12), (6.49, 10.43), (6.21, 10.43), (6.03, 10.12), (4.13, 10.12), (3.95, 10.43), (3.67, 10.43), (3.49, 10.12), (1.59, 10.12), (1.41, 10.43), (1.13, 10.43), (0.95, 10.12), (-0.95, 10.12), (-1.13, 10.43), (-1.41, 10.43), (-1.59, 10.12), (-3.49, 10.12), (-3.67, 10.43), (-3.95, 10.43), (-4.13, 10.12), (-6.03, 10.12), (-6.21, 10.43), (-6.49, 10.43), (-6.67, 10.12), (-8.57, 10.12), (-8.75, 10.43), (-9.03, 10.43), (-9.21, 10.12), (-11.11, 10.12), (-11.29, 10.43), (-11.57, 10.43)])  # lines 0-41
sketch7.addConstraint(Sketcher.Constraint("Vertical", 0))
sketch7.addConstraint(Sketcher.Constraint("Horizontal", 1))
sketch7.addConstraint(Sketcher.Constraint("Vertical", 2))
sketch7.addConstraint(Sketcher.Constraint("Horizontal", 4))
sketch7.addConstraint(Sketcher.Constraint("Horizontal", 6))
sketch7.addConstraint(Sketcher.Constraint("Horizontal", 8))
sketch7.addConstraint(Sketcher.Constraint("Horizontal", 10))
sketch7.addConstraint(Sketcher.Constraint("Horizontal", 12))
sketch7.addConstraint(Sketcher.Constraint("Horizontal", 14))
sketch7.addConstraint(Sketcher.Constraint("Horizontal", 16))
sketch7.addConstraint(Sketcher.Constraint("Horizontal", 18))
sketch7.addConstraint(Sketcher.Constraint("Horizontal", 20))
sketch7.addConstraint(Sketcher.Constraint("Horizontal", 22))
sketch7.addConstraint(Sketcher.Constraint("Horizontal", 24))
sketch7.addConstraint(Sketcher.Constraint("Horizontal", 26))
sketch7.addConstraint(Sketcher.Constraint("Horizontal", 28))
sketch7.addConstraint(Sketcher.Constraint("Horizontal", 30))
sketch7.addConstraint(Sketcher.Constraint("Horizontal", 32))
sketch7.addConstraint(Sketcher.Constraint("Horizontal", 34))
sketch7.addConstraint(Sketcher.Constraint("Horizontal", 36))
sketch7.addConstraint(Sketcher.Constraint("Horizontal", 38))
sketch7.addConstraint(Sketcher.Constraint("Horizontal", 40))
sketch7.addConstraint(Sketcher.Constraint("Symmetric", 20, 2, 23, 2, -2))
sketch7.addConstraint(Sketcher.Constraint("Symmetric", 18, 2, 25, 2, -2))
sketch7.addConstraint(Sketcher.Constraint("Symmetric", 16, 2, 27, 2, -2))
sketch7.addConstraint(Sketcher.Constraint("Symmetric", 14, 2, 29, 2, -2))
sketch7.addConstraint(Sketcher.Constraint("Symmetric", 12, 2, 31, 2, -2))
sketch7.addConstraint(Sketcher.Constraint("Symmetric", 10, 2, 33, 2, -2))
sketch7.addConstraint(Sketcher.Constraint("Symmetric", 8, 2, 35, 2, -2))
sketch7.addConstraint(Sketcher.Constraint("Symmetric", 6, 2, 37, 2, -2))
sketch7.addConstraint(Sketcher.Constraint("Symmetric", 4, 2, 39, 2, -2))
sketch7.addConstraint(Sketcher.Constraint("Symmetric", 2, 2, 41, 2, -2))
sketch7.addConstraint(Sketcher.Constraint("Parallel", 3, 7))
sketch7.addConstraint(Sketcher.Constraint("Parallel", 5, 9))
sketch7.addConstraint(Sketcher.Constraint("Parallel", 7, 11))
sketch7.addConstraint(Sketcher.Constraint("Parallel", 9, 13))
sketch7.addConstraint(Sketcher.Constraint("Parallel", 11, 15))
sketch7.addConstraint(Sketcher.Constraint("Parallel", 13, 17))
sketch7.addConstraint(Sketcher.Constraint("Parallel", 15, 19))
sketch7.addConstraint(Sketcher.Constraint("Parallel", 17, 21))
sketch7.addConstraint(Sketcher.Constraint("Parallel", 19, 23))
sketch7.addConstraint(Sketcher.Constraint("Parallel", 21, 25))
sketch7.addConstraint(Sketcher.Constraint("Parallel", 23, 27))
sketch7.addConstraint(Sketcher.Constraint("Parallel", 25, 29))
sketch7.addConstraint(Sketcher.Constraint("Parallel", 27, 31))
sketch7.addConstraint(Sketcher.Constraint("Parallel", 29, 33))
sketch7.addConstraint(Sketcher.Constraint("Parallel", 31, 35))
sketch7.addConstraint(Sketcher.Constraint("Parallel", 33, 37))
sketch7.addConstraint(Sketcher.Constraint("Parallel", 35, 39))
sketch7.addConstraint(Sketcher.Constraint("Parallel", 37, 41))
sketch7.addConstraint(Sketcher.Constraint("Horizontal", 2, 2, 5, 2))
sketch7.addConstraint(Sketcher.Constraint("Horizontal", 4, 2, 7, 2))
sketch7.addConstraint(Sketcher.Constraint("Horizontal", 6, 2, 9, 2))
sketch7.addConstraint(Sketcher.Constraint("Horizontal", 8, 2, 11, 2))
sketch7.addConstraint(Sketcher.Constraint("Horizontal", 10, 2, 13, 2))
sketch7.addConstraint(Sketcher.Constraint("Horizontal", 12, 2, 15, 2))
sketch7.addConstraint(Sketcher.Constraint("Horizontal", 14, 2, 17, 2))
sketch7.addConstraint(Sketcher.Constraint("Horizontal", 16, 2, 19, 2))
sketch7.addConstraint(Sketcher.Constraint("Horizontal", 18, 2, 21, 2))
sketch7.addConstraint(Sketcher.Constraint("Equal", 4, 8))
sketch7.addConstraint(Sketcher.Constraint("Equal", 6, 10))
sketch7.addConstraint(Sketcher.Constraint("Equal", 8, 12))
sketch7.addConstraint(Sketcher.Constraint("Equal", 10, 14))
sketch7.addConstraint(Sketcher.Constraint("Equal", 12, 16))
sketch7.addConstraint(Sketcher.Constraint("Equal", 14, 18))
sketch7.addConstraint(Sketcher.Constraint("Equal", 16, 20))
sketch7.addConstraint(Sketcher.Constraint("Equal", 18, 22))
sketch7.addConstraint(Sketcher.Constraint("Equal", 20, 24))
sketch7.addConstraint(Sketcher.Constraint("DistanceY", 0, 1, 0, 2, Q("0.1 in")))
sketch7.addConstraint(Sketcher.Constraint("DistanceX", 0, 2, 5, 2, Q("0.9 in")))
sketch7.addConstraint(Sketcher.Constraint("DistanceX", 1, 1, 1, 2, Q("0.925 in")))
sketch7.addConstraint(Sketcher.Constraint("DistanceY", 2, 2, 3, 2, Q("0.012 in")))
sketch7.addConstraint(Sketcher.Constraint("DistanceX", 4, 2, 4, 1, 0.283))
sketch7.addConstraint(Sketcher.Constraint("DistanceY", -1, 1, 0, 2, Q("0.4985 in")))
pocket4 = body.newObject("PartDesign::Pocket", "Pocket003")
pocket4.Profile = sketch7
pocket4.Length = Q("0.8 in")
pocket4.Midplane = True

doc.recompute()
